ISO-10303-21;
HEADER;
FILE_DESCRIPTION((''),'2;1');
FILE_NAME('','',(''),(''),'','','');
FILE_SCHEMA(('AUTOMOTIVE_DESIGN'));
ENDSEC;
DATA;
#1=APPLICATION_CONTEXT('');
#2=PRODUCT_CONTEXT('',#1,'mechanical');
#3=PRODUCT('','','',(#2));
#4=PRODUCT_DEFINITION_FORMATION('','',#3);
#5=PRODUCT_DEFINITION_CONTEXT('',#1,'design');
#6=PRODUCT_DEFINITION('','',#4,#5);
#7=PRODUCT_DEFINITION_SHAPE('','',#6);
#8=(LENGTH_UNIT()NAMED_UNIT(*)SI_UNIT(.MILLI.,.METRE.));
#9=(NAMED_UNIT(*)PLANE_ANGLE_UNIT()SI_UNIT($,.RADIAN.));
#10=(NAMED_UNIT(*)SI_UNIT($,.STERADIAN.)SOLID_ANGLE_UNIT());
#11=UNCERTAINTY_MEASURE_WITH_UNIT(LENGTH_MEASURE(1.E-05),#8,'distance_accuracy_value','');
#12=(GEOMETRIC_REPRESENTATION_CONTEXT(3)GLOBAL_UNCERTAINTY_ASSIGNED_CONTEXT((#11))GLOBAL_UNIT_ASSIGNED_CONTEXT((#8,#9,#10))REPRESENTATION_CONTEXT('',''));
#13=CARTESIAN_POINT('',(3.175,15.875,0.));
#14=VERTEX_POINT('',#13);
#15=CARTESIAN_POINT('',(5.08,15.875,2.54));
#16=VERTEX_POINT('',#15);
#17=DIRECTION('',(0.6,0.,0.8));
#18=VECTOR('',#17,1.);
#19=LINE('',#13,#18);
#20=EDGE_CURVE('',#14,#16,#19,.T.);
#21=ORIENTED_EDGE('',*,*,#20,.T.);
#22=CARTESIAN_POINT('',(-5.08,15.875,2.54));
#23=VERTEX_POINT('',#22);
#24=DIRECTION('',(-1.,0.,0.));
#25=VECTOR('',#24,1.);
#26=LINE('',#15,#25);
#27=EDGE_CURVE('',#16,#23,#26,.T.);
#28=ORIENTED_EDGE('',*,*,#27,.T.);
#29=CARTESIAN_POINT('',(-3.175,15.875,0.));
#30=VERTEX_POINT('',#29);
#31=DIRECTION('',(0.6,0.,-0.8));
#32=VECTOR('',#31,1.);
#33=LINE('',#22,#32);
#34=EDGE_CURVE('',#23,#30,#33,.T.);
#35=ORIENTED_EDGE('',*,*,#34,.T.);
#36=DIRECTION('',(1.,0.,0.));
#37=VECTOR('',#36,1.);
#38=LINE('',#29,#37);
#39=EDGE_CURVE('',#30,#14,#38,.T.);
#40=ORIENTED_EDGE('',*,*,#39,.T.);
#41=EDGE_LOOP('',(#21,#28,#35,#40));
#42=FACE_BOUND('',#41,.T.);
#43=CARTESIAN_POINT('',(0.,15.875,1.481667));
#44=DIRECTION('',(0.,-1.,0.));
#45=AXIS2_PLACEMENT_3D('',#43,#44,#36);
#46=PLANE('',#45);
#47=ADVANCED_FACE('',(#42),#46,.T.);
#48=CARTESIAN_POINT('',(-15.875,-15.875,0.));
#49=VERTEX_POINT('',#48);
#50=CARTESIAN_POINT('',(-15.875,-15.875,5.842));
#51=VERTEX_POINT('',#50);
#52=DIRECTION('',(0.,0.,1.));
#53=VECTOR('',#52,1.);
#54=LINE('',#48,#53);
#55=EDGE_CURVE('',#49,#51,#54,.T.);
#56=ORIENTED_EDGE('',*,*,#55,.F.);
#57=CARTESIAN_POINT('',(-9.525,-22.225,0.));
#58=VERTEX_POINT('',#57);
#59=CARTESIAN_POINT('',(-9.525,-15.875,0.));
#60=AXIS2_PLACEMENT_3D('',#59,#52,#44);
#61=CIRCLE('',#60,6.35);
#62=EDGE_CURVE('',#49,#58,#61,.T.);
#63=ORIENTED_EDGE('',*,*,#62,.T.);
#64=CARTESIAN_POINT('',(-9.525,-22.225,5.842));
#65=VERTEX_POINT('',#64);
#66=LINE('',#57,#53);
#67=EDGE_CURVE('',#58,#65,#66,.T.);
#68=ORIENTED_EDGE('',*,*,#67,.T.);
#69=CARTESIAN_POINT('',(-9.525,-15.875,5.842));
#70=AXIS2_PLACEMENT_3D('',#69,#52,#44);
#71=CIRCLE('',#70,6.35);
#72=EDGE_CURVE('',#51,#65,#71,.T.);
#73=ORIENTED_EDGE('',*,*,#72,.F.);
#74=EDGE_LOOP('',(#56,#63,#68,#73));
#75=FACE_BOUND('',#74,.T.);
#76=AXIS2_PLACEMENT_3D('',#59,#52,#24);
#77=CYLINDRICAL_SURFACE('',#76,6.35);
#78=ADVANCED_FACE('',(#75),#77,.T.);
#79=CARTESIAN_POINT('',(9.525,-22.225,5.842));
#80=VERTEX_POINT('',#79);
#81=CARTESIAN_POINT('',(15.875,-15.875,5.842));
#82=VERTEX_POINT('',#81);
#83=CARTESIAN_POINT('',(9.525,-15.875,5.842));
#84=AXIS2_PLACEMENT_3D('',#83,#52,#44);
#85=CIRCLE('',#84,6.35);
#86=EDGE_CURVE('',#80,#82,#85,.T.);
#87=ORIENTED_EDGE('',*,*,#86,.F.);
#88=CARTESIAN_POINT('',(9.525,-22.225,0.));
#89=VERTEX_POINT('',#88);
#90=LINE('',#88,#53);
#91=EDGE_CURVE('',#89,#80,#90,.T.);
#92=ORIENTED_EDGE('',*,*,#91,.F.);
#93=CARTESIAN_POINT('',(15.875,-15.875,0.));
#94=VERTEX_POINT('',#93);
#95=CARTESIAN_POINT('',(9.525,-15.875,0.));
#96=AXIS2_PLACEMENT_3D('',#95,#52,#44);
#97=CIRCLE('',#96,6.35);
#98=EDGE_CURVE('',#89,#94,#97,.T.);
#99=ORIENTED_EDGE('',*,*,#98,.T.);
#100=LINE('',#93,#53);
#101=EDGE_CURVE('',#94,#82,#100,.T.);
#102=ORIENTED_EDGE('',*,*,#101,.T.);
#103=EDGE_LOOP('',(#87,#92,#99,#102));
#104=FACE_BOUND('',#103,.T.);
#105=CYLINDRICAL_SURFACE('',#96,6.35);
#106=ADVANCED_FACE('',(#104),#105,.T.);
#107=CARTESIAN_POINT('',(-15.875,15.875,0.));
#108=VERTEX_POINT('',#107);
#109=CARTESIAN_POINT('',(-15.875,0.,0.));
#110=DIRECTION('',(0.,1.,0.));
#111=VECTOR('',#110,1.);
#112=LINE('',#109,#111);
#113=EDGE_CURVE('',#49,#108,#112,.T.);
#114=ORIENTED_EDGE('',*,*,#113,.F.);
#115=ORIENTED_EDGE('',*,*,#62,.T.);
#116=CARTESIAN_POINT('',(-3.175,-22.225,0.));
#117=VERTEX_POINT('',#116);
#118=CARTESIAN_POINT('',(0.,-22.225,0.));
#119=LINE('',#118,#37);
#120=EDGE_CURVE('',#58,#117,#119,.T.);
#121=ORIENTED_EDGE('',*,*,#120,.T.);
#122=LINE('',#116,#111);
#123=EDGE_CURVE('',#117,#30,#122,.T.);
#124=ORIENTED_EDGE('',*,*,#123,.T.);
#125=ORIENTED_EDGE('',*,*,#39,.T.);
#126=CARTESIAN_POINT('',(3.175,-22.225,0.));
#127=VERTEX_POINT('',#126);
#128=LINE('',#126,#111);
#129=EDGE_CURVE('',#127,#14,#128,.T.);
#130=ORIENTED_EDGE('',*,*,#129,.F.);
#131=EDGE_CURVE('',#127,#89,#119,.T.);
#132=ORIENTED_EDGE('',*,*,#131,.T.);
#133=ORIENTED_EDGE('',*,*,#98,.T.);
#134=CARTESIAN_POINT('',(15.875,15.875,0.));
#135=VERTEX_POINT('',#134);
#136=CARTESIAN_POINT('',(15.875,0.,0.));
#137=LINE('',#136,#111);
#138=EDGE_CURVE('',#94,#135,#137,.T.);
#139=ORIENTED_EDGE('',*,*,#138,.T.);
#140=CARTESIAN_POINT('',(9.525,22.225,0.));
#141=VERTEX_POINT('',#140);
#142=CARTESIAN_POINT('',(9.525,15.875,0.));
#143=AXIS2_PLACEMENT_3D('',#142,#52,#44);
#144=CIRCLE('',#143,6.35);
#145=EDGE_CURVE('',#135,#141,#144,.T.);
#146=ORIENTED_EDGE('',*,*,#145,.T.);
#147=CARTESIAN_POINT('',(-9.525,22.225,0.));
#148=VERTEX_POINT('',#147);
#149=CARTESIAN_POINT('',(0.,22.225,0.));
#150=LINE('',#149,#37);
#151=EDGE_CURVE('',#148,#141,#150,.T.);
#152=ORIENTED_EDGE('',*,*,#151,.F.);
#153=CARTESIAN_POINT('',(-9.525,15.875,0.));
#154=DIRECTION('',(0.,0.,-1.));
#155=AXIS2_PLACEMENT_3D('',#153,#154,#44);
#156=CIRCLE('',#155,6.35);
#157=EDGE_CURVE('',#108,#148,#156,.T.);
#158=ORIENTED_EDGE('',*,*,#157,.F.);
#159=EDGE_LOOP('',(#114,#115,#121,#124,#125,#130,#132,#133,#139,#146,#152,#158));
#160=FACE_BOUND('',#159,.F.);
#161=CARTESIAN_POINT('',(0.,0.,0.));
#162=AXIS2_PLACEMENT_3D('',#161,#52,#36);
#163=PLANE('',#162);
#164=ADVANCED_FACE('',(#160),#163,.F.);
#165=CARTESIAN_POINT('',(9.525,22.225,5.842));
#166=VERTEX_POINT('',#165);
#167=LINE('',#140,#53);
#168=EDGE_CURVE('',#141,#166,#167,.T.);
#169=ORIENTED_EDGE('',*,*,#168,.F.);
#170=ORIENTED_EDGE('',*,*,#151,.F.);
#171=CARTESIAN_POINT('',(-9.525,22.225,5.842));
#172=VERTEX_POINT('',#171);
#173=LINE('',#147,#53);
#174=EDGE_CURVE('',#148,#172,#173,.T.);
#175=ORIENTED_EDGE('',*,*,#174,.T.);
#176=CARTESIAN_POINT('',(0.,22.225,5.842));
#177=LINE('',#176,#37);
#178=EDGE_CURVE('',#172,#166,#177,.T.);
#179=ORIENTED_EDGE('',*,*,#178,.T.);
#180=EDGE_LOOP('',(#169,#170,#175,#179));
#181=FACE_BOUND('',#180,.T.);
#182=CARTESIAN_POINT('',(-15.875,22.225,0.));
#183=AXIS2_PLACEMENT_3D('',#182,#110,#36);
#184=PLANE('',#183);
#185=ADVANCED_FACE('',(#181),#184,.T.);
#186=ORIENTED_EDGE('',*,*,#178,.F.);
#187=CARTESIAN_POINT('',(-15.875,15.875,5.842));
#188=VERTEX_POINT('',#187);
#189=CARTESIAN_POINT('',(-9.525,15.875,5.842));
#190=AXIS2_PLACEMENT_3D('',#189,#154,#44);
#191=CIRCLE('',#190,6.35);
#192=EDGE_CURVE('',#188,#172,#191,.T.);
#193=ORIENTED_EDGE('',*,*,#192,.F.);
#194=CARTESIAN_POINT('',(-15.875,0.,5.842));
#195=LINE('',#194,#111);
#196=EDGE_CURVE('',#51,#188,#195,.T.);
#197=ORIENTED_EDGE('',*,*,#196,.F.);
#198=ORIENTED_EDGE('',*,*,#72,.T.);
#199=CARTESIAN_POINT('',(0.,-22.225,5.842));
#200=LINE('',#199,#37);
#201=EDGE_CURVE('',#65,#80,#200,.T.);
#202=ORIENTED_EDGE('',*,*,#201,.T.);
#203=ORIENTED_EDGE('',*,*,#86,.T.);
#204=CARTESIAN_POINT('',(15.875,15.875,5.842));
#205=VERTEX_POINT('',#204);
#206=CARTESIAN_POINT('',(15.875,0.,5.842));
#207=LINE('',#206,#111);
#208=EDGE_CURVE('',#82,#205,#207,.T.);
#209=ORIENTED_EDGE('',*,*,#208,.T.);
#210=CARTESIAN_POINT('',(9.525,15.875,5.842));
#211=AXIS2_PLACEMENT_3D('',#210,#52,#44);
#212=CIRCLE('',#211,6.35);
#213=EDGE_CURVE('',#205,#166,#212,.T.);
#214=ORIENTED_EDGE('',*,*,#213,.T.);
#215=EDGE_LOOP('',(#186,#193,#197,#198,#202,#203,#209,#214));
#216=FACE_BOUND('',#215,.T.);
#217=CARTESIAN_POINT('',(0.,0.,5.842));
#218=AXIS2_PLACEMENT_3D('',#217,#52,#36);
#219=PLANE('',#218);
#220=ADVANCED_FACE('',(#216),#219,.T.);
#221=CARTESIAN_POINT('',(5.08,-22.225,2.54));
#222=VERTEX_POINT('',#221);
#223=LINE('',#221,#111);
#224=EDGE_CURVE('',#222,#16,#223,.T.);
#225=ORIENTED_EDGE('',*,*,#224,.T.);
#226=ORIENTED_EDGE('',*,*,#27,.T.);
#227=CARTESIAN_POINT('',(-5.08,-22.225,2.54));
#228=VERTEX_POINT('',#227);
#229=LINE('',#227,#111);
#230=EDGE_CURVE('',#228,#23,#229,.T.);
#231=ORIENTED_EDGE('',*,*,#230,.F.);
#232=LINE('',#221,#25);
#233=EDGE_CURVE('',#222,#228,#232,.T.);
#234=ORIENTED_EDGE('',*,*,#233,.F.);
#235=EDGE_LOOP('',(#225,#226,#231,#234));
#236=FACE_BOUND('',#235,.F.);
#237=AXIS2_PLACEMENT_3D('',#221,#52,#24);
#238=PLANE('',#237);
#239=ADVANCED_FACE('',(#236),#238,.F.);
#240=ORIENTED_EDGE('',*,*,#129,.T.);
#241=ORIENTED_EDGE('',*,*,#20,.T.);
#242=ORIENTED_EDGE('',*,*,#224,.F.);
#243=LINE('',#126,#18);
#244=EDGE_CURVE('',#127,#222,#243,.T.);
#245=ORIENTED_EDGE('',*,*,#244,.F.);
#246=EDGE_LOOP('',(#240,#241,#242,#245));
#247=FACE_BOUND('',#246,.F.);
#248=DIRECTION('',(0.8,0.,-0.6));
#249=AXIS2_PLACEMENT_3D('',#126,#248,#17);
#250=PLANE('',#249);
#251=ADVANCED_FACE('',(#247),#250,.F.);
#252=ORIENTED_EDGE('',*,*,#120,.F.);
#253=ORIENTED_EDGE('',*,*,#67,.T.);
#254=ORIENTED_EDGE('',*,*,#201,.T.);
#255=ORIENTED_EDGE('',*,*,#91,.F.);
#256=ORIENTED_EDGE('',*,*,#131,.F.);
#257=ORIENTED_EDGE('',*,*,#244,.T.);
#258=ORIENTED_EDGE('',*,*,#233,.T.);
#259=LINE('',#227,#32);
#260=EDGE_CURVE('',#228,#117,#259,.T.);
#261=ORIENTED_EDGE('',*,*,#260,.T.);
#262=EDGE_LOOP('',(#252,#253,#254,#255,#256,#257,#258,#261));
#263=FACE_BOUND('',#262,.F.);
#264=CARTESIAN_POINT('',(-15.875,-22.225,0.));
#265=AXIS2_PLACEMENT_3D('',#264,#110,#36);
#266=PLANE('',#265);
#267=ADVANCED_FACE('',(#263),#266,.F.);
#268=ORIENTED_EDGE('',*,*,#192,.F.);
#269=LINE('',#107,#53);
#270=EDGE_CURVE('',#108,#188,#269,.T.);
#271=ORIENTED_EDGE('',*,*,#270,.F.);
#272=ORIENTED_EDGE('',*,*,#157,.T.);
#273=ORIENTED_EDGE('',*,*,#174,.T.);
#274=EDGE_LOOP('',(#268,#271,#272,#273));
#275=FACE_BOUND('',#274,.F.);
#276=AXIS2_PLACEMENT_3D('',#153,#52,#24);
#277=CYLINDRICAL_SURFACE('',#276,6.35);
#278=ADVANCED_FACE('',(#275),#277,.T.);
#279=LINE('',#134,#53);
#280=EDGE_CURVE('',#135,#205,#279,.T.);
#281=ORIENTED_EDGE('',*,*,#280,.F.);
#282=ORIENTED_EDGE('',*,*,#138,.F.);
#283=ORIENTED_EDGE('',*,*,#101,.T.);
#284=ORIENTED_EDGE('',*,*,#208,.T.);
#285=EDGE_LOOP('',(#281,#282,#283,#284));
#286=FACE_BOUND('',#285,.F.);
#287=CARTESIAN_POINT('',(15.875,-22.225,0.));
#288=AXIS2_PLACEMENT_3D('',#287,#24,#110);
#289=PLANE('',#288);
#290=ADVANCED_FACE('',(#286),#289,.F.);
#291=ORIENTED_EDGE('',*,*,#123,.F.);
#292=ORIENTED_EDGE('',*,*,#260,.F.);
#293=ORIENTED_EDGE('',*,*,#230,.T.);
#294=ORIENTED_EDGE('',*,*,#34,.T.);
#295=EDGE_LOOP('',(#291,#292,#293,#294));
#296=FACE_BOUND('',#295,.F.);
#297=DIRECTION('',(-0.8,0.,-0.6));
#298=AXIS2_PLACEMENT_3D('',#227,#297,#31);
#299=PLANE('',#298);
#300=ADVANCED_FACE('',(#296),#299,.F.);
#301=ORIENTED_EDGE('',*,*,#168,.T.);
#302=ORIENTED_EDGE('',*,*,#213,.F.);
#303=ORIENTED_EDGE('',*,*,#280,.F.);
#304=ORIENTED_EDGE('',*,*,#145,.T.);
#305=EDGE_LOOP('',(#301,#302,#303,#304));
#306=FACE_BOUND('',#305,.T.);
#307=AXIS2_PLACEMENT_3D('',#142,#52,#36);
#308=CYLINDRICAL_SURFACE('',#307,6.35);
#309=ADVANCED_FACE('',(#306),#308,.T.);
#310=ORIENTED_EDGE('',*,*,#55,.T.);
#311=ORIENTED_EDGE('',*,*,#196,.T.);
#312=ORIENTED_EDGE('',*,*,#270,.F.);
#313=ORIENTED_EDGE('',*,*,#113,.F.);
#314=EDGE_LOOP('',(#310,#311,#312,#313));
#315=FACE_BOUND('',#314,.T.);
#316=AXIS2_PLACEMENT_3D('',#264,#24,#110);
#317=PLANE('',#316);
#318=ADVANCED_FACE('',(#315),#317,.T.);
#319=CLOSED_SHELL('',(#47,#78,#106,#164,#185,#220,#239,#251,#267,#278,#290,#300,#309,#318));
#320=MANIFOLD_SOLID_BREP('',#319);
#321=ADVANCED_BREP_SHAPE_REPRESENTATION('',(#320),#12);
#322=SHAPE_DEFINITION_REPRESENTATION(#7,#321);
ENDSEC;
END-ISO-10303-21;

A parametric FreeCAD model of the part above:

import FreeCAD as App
import Part
import Sketcher
Q = App.Units.Quantity


def edges_at(feature, points):
    """Names of the edges that pass closest to the given points."""
    edges = feature.Shape.Edges
    near = lambda p: min(range(len(edges)), key=lambda i: edges[i].distToShape(Part.Vertex(*p))[0])
    return sorted({f"Edge{near(p) + 1}" for p in points})

doc = App.newDocument("Part")
body = doc.addObject("PartDesign::Body", "Body")

# Sketch on XY plane
sketch1 = doc.addObject("Sketcher::SketchObject", "Sketch")
body.addObject(sketch1)
sketch1.AttachmentSupport = (doc.XY_Plane, [""])
sketch1.MapMode = "FlatFace"
sketch1.addGeometry([
    Part.LineSegment(App.Vector(-15.875, 22.225, 0), App.Vector(-15.875, -22.225, 0)),
    Part.LineSegment(App.Vector(-15.875, -22.225, 0), App.Vector(15.875, -22.225, 0)),
    Part.LineSegment(App.Vector(15.875, -22.225, 0), App.Vector(15.875, 22.225, 0)),
    Part.LineSegment(App.Vector(15.875, 22.225, 0), App.Vector(-15.875, 22.225, 0)),
], False)
sketch1.addConstraint([
    Sketcher.Constraint("Coincident", 0, 2, 1, 1),
    Sketcher.Constraint("Coincident", 1, 2, 2, 1),
    Sketcher.Constraint("Coincident", 2, 2, 3, 1),
    Sketcher.Constraint("Coincident", 3, 2, 0, 1),
    Sketcher.Constraint("Vertical", 0),
    Sketcher.Constraint("Horizontal", 1),
    Sketcher.Constraint("Vertical", 2),
    Sketcher.Constraint("Horizontal", 3),
    Sketcher.Constraint("Symmetric", 0, 2, 2, 2, -1, 1),
    Sketcher.Constraint("DistanceX", 1, 1, 1, 2, Q("1.25 in")),
    Sketcher.Constraint("DistanceY", 0, 2, 0, 1, Q("1.75 in")),
])
pad1 = doc.addObject("PartDesign::Pad", "Pad")
body.addObject(pad1)
pad1.Profile = sketch1
pad1.Length = Q("0.23 in")
doc.recompute()

fillet = doc.addObject("PartDesign::Fillet", "Fillet")
body.addObject(fillet)
fillet.Base = (pad1, edges_at(pad1, [
    (15.875, 22.225, 2.921),
    (-15.875, 22.225, 2.921),
    (-15.875, -22.225, 2.921),
    (15.875, -22.225, 2.921),
]))
fillet.Radius = Q("0.25 in")

# Sketch on XZ plane
sketch2 = doc.addObject("Sketcher::SketchObject", "Sketch001")
body.addObject(sketch2)
sketch2.AttachmentSupport = (doc.XZ_Plane, [""])
sketch2.MapMode = "FlatFace"
sketch2.AttachmentOffset = App.Placement(App.Vector(0, 0, 0.875 * 25.4), App.Rotation())
sketch2.addGeometry([
    Part.LineSegment(App.Vector(5.08, 2.54, 0), App.Vector(-5.08, 2.54, 0)),
    Part.LineSegment(App.Vector(-5.08, 2.54, 0), App.Vector(-3.175, 0, 0)),
    Part.LineSegment(App.Vector(-3.175, 0, 0), App.Vector(3.175, 0, 0)),
    Part.LineSegment(App.Vector(3.175, 0, 0), App.Vector(5.08, 2.54, 0)),
], False)
sketch2.addConstraint([
    Sketcher.Constraint("Coincident", 0, 2, 1, 1),
    Sketcher.Constraint("Coincident", 1, 2, 2, 1),
    Sketcher.Constraint("Coincident", 2, 2, 3, 1),
    Sketcher.Constraint("Coincident", 3, 2, 0, 1),
    Sketcher.Constraint("Horizontal", 0),
    Sketcher.Constraint("Horizontal", 2),
    Sketcher.Constraint("Symmetric", 1, 2, 2, 2, -1, 1),
    Sketcher.Constraint("Equal", 1, 3),
    Sketcher.Constraint("DistanceX", 0, 2, 0, 1, Q("0.4 in")),
    Sketcher.Constraint("DistanceX", 2, 1, 2, 2, Q("0.25 in")),
    Sketcher.Constraint("DistanceY", -1, 1, 0, 2, Q("0.1 in")),
])
pocket1 = doc.addObject("PartDesign::Pocket", "Pocket")
body.addObject(pocket1)
pocket1.Profile = sketch2
pocket1.Length = Q("1.5 in")

doc.recompute()
